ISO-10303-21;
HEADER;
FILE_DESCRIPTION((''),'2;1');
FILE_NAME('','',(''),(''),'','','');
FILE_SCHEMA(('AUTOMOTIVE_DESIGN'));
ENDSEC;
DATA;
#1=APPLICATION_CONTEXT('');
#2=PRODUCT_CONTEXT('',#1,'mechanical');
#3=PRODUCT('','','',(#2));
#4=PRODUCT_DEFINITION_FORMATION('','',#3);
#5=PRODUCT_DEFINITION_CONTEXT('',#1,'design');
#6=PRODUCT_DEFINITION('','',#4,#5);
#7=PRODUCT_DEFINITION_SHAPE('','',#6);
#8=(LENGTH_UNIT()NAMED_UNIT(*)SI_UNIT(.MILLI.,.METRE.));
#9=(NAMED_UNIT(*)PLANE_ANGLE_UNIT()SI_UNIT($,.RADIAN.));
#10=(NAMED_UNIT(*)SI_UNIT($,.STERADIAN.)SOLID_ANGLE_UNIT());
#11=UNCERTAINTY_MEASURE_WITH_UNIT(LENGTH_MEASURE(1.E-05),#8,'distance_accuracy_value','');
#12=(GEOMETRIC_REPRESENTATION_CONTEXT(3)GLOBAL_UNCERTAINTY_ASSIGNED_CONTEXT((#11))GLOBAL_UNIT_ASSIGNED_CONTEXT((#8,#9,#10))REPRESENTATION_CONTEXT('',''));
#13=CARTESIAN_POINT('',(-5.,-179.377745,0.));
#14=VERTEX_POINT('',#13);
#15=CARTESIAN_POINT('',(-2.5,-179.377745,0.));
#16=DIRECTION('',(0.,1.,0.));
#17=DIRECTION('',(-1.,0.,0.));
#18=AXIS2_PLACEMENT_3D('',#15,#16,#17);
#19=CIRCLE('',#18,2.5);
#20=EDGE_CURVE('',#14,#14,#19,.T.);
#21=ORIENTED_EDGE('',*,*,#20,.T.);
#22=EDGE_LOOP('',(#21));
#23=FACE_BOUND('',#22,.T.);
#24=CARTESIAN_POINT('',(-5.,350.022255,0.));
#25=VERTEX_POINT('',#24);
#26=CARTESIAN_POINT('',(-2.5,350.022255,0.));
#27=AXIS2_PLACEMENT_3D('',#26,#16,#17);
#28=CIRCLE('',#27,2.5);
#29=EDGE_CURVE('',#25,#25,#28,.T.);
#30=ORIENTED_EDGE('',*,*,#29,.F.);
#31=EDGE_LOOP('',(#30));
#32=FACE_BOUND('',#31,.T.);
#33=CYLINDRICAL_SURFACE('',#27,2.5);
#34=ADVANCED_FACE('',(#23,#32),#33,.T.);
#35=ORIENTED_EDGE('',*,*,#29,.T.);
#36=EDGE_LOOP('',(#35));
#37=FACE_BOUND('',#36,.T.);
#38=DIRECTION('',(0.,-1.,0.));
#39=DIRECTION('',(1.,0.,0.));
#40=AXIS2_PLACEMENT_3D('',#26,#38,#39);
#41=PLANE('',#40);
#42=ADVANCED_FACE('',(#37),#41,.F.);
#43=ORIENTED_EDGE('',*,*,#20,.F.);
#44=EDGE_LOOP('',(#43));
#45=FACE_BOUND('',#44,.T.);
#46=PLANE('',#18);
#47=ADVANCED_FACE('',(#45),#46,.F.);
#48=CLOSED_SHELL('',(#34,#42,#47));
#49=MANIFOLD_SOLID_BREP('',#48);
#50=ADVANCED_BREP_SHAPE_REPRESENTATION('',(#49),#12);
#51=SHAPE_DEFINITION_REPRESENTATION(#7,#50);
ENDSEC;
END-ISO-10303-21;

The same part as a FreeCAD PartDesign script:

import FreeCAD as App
import Part
import Sketcher


def add_polygon(sketch, points):
    """Adds a closed chain of lines whose ends are joined by coincident constraints."""
    first, n = sketch.GeometryCount, len(points)
    for a, b in zip(points, points[1:] + points[:1]):
        sketch.addGeometry(Part.LineSegment(App.Vector(*a, 0), App.Vector(*b, 0)), False)
    for i in range(n):
        sketch.addConstraint(Sketcher.Constraint("Coincident", first + i, 2, first + (i + 1) % n, 1))

doc = App.newDocument("Part")
params = doc.addObject("Spreadsheet::Sheet", "Params")
for row, (alias, value) in enumerate([
    ("sketch1_width", "2.5 mm"),
    ("sketch1_height", "529.4 mm"),
    ("revolution_angle", "360 deg"),
], start=1):
    params.set(f"A{row}", alias)
    params.set(f"B{row}", "=" + value)
    params.setAlias(f"B{row}", alias)

body = doc.addObject("PartDesign::Body", "Body")

sketch1 = doc.addObject("Sketcher::SketchObject", "Sketch")
body.addObject(sketch1)
sketch1.AttachmentSupport = (doc.XY_Plane, [""])
sketch1.MapMode = "FlatFace"
add_polygon(sketch1, [(-2.5, 350), (-2.5, -179.4), (0, -179.4), (0, 350)])
sketch1.addGeometry(Part.LineSegment(App.Vector(-2.5, 350, 0), App.Vector(-2.5, -179.4, 0)), True)
sketch1.addConstraint([
    Sketcher.Constraint("Vertical", 0),
    Sketcher.Constraint("Horizontal", 1),
    Sketcher.Constraint("Vertical", 2),
    Sketcher.Constraint("Horizontal", 3),
    Sketcher.Constraint("Vertical", 4),
    Sketcher.Constraint("Coincident", 4, 1, 3, 2),
    Sketcher.Constraint("PointOnObject", 1, 2, -2),
    Sketcher.Constraint("Horizontal", 1, 2, 4, 2),
    Sketcher.Constraint("DistanceX", 1, 1, 1, 2, 2.5),
    Sketcher.Constraint("DistanceY", 0, 2, 0, 1, 529.4),
    Sketcher.Constraint("DistanceY", 0, 2, -1, 1, 179.377745),
])
sketch1.setExpression("Constraints[12]", "Params.sketch1_width")
sketch1.setExpression("Constraints[13]", "Params.sketch1_height")
revolution = doc.addObject("PartDesign::Revolution", "Revolution")
body.addObject(revolution)
revolution.Profile = sketch1
revolution.ReferenceAxis = (sketch1, ["Axis0"])
revolution.setExpression("Angle", "Params.revolution_angle")

doc.recompute()
